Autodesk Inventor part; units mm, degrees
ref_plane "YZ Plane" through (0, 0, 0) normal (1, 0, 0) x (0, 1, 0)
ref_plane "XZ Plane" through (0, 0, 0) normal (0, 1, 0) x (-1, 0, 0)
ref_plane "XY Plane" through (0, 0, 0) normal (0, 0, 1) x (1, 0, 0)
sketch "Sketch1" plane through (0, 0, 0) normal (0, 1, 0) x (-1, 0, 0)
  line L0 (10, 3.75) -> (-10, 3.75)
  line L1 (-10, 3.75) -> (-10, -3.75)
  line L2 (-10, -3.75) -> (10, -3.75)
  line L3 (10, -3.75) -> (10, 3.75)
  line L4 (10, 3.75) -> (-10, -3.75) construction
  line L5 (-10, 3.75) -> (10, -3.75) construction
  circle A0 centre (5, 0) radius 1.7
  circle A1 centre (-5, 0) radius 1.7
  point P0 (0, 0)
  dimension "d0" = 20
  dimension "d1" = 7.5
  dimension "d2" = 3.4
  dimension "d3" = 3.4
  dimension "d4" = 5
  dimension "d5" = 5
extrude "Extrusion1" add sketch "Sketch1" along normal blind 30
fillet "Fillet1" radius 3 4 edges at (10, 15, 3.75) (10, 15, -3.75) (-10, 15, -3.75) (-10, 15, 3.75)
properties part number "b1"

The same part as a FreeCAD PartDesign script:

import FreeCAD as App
import Part
import Sketcher

V = App.Vector
Q = App.Units.Quantity


def edges_at(feature, points):
    """Names of the edges that pass closest to the given points."""
    edges = feature.Shape.Edges
    near = lambda p: min(range(len(edges)), key=lambda i: edges[i].distToShape(Part.Vertex(*p))[0])
    return sorted({f"Edge{near(p) + 1}" for p in points})

doc = App.newDocument("Part")
body = doc.addObject("PartDesign::Body", "Body")

# Sketch on XZ plane
sketch1 = body.newObject("Sketcher::SketchObject", "Sketch")
sketch1.AttachmentSupport = (doc.getObject("XZ_Plane"), [""])
sketch1.MapMode = "FlatFace"
sketch1.addGeometry(Part.LineSegment(V(-10, -3.8, 0), V(-10, 3.8, 0)), False)
sketch1.addGeometry(Part.LineSegment(V(-10, 3.8, 0), V(10, 3.8, 0)), False)
sketch1.addGeometry(Part.LineSegment(V(10, 3.8, 0), V(10, -3.8, 0)), False)
sketch1.addGeometry(Part.LineSegment(V(10, -3.8, 0), V(-10, -3.8, 0)), False)
sketch1.addGeometry(Part.Circle(V(5, 0, 0), V(0, 0, 1), 1.7), False)
sketch1.addGeometry(Part.Circle(V(-5, 0, 0), V(0, 0, 1), 1.7), False)
sketch1.addConstraint(Sketcher.Constraint("Coincident", 0, 2, 1, 1))
sketch1.addConstraint(Sketcher.Constraint("Coincident", 1, 2, 2, 1))
sketch1.addConstraint(Sketcher.Constraint("Coincident", 2, 2, 3, 1))
sketch1.addConstraint(Sketcher.Constraint("Coincident", 3, 2, 0, 1))
sketch1.addConstraint(Sketcher.Constraint("Vertical", 0))
sketch1.addConstraint(Sketcher.Constraint("Horizontal", 1))
sketch1.addConstraint(Sketcher.Constraint("Vertical", 2))
sketch1.addConstraint(Sketcher.Constraint("Horizontal", 3))
sketch1.addConstraint(Sketcher.Constraint("Equal", 4, 5))
sketch1.addConstraint(Sketcher.Constraint("Symmetric", 4, 3, 5, 3, -1, 1))
sketch1.addConstraint(Sketcher.Constraint("Symmetric", 0, 2, 2, 2, -1, 1))
sketch1.addConstraint(Sketcher.Constraint("PointOnObject", 4, 3, -1))
sketch1.addConstraint(Sketcher.Constraint("Diameter", 4, Q("3.4 mm")))
sketch1.addConstraint(Sketcher.Constraint("DistanceX", 1, 1, 1, 2, Q("20 mm")))
sketch1.addConstraint(Sketcher.Constraint("DistanceY", 0, 1, 0, 2, Q("7.5 mm")))
sketch1.addConstraint(Sketcher.Constraint("DistanceX", -1, 1, 4, 3, Q("5 mm")))
pad1 = body.newObject("PartDesign::Pad", "Pad")
pad1.Profile = sketch1
pad1.Length = 30
pad1.Reversed = True
doc.recompute()

fillet = body.newObject("PartDesign::Fillet", "Fillet")
fillet.Base = (pad1, edges_at(pad1, [
    (10, 15, 3.75),
    (10, 15, -3.75),
    (-10, 15, -3.75),
    (-10, 15, 3.75),
]))
fillet.Radius = 3

doc.recompute()
